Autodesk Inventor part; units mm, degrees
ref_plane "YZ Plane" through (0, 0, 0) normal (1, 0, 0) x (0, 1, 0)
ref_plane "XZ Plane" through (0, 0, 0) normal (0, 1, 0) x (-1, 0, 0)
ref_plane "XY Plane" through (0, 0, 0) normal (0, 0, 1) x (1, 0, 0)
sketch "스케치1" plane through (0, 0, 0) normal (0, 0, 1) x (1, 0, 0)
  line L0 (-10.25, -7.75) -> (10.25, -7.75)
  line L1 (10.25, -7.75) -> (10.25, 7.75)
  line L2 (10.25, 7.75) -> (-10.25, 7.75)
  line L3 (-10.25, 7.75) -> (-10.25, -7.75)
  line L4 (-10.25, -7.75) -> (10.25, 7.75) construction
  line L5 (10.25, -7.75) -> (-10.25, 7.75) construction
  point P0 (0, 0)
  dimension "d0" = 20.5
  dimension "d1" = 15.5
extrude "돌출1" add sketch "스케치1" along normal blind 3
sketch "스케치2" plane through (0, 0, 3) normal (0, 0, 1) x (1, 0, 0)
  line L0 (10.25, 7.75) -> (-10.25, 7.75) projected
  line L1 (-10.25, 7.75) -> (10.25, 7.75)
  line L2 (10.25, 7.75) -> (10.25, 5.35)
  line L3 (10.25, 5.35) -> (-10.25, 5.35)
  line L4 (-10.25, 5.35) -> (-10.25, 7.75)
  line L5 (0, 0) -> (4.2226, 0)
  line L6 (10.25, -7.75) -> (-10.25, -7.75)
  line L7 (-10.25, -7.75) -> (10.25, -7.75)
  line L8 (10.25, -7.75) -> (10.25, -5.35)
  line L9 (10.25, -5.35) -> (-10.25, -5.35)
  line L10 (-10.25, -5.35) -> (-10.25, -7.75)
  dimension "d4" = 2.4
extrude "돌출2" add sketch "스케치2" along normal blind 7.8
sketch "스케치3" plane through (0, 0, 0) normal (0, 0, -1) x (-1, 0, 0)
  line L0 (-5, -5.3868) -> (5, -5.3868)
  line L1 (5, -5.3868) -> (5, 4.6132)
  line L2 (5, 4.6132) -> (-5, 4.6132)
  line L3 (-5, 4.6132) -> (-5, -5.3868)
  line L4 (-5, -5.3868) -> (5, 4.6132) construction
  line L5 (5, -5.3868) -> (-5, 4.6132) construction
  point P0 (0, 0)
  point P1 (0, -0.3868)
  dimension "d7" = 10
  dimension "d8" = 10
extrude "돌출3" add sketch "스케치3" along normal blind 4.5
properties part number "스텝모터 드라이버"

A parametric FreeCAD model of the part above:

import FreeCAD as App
import Part
import Sketcher

V = App.Vector
Q = App.Units.Quantity

doc = App.newDocument("Part")
body = doc.addObject("PartDesign::Body", "Body")

# Sketch on XY plane
sketch1 = body.newObject("Sketcher::SketchObject", "Sketch")
sketch1.AttachmentSupport = (doc.getObject("XY_Plane"), [""])
sketch1.MapMode = "FlatFace"
sketch1.addGeometry([
    Part.LineSegment(V(-10, 8, 0), V(-10, -8, 0)),
    Part.LineSegment(V(-10, -8, 0), V(10, -8, 0)),
    Part.LineSegment(V(10, -8, 0), V(10, 8, 0)),
    Part.LineSegment(V(10, 8, 0), V(-10, 8, 0)),
], False)
sketch1.addConstraint([
    Sketcher.Constraint("Coincident", 0, 2, 1, 1),
    Sketcher.Constraint("Coincident", 1, 2, 2, 1),
    Sketcher.Constraint("Coincident", 2, 2, 3, 1),
    Sketcher.Constraint("Coincident", 3, 2, 0, 1),
    Sketcher.Constraint("Vertical", 0),
    Sketcher.Constraint("Horizontal", 1),
    Sketcher.Constraint("Vertical", 2),
    Sketcher.Constraint("Horizontal", 3),
    Sketcher.Constraint("Symmetric", 0, 2, 2, 2, -1, 1),
    Sketcher.Constraint("DistanceX", 1, 1, 1, 2, Q("20.5 mm")),
    Sketcher.Constraint("DistanceY", 0, 2, 0, 1, Q("15.5 mm")),
])
pad1 = body.newObject("PartDesign::Pad", "Pad")
pad1.Profile = sketch1
pad1.Length = 3

# Sketch on XY plane
sketch2 = body.newObject("Sketcher::SketchObject", "Sketch001")
sketch2.AttachmentSupport = (doc.getObject("XY_Plane"), [""])
sketch2.MapMode = "FlatFace"
sketch2.AttachmentOffset = App.Placement(V(0, 0, 3), App.Rotation())
sketch2.addGeometry([
    Part.LineSegment(V(10.2, 5.3, 0), V(10.2, 7.8, 0)),  # 0
    Part.LineSegment(V(10.2, 7.8, 0), V(-10.2, 7.8, 0)),  # 1
    Part.LineSegment(V(-10.2, 7.8, 0), V(-10.2, 5.3, 0)),  # 2
    Part.LineSegment(V(-10.2, 5.3, 0), V(10.2, 5.3, 0)),  # 3
    Part.LineSegment(V(-10.2, -7.8, 0), V(10.2, -7.8, 0)),  # 4
    Part.LineSegment(V(10.2, -7.8, 0), V(10.2, -5.3, 0)),  # 5
    Part.LineSegment(V(10.2, -5.3, 0), V(-10.2, -5.3, 0)),  # 6
    Part.LineSegment(V(-10.2, -5.3, 0), V(-10.2, -7.8, 0)),  # 7
], False)
sketch2.addConstraint([
    Sketcher.Constraint("Coincident", 0, 2, 1, 1),
    Sketcher.Constraint("Coincident", 1, 2, 2, 1),
    Sketcher.Constraint("Coincident", 2, 2, 3, 1),
    Sketcher.Constraint("Coincident", 3, 2, 0, 1),
    Sketcher.Constraint("Coincident", 4, 2, 5, 1),
    Sketcher.Constraint("Coincident", 5, 2, 6, 1),
    Sketcher.Constraint("Coincident", 6, 2, 7, 1),
    Sketcher.Constraint("Coincident", 7, 2, 4, 1),
    Sketcher.Constraint("Vertical", 0),
    Sketcher.Constraint("Horizontal", 1),
    Sketcher.Constraint("Vertical", 2),
    Sketcher.Constraint("Horizontal", 3),
    Sketcher.Constraint("Horizontal", 4),
    Sketcher.Constraint("Vertical", 5),
    Sketcher.Constraint("Horizontal", 6),
    Sketcher.Constraint("Vertical", 7),
    Sketcher.Constraint("Symmetric", 1, 2, 4, 2, -1, 1),
    Sketcher.Constraint("Symmetric", 3, 2, 6, 2, -1, 1),
    Sketcher.Constraint("Vertical", 3, 2, 4, 2),
    Sketcher.Constraint("DistanceY", 0, 1, 0, 2, Q("2.4 mm")),
    Sketcher.Constraint("DistanceX", 1, 2, 1, 1, Q("20.5 mm")),
    Sketcher.Constraint("DistanceY", 4, 2, 3, 2, Q("13.1 mm")),
])
pad2 = body.newObject("PartDesign::Pad", "Pad001")
pad2.Profile = sketch2
pad2.Length = 7.8

# Sketch on XY plane
sketch3 = body.newObject("Sketcher::SketchObject", "Sketch002")
sketch3.AttachmentSupport = (doc.getObject("XY_Plane"), [""])
sketch3.MapMode = "FlatFace"
sketch3.addGeometry([
    Part.LineSegment(V(5, 5, 0), V(5, -5, 0)),
    Part.LineSegment(V(5, -5, 0), V(-5, -5, 0)),
    Part.LineSegment(V(-5, -5, 0), V(-5, 5, 0)),
    Part.LineSegment(V(-5, 5, 0), V(5, 5, 0)),
], False)
sketch3.addConstraint([
    Sketcher.Constraint("Coincident", 0, 2, 1, 1),
    Sketcher.Constraint("Coincident", 1, 2, 2, 1),
    Sketcher.Constraint("Coincident", 2, 2, 3, 1),
    Sketcher.Constraint("Coincident", 3, 2, 0, 1),
    Sketcher.Constraint("Vertical", 0),
    Sketcher.Constraint("Horizontal", 1),
    Sketcher.Constraint("Vertical", 2),
    Sketcher.Constraint("Horizontal", 3),
    Sketcher.Constraint("Equal", 3, 0),
    Sketcher.Constraint("DistanceX", 1, 2, 1, 1, Q("10 mm")),
    Sketcher.Constraint("DistanceX", -1, 1, 0, 2, Q("5 mm")),
    Sketcher.Constraint("DistanceY", 0, 2, -1, 1, Q("5.3868 mm")),
])
pad3 = body.newObject("PartDesign::Pad", "Pad002")
pad3.Profile = sketch3
pad3.Length = 4.5
pad3.Reversed = True

doc.recompute()
